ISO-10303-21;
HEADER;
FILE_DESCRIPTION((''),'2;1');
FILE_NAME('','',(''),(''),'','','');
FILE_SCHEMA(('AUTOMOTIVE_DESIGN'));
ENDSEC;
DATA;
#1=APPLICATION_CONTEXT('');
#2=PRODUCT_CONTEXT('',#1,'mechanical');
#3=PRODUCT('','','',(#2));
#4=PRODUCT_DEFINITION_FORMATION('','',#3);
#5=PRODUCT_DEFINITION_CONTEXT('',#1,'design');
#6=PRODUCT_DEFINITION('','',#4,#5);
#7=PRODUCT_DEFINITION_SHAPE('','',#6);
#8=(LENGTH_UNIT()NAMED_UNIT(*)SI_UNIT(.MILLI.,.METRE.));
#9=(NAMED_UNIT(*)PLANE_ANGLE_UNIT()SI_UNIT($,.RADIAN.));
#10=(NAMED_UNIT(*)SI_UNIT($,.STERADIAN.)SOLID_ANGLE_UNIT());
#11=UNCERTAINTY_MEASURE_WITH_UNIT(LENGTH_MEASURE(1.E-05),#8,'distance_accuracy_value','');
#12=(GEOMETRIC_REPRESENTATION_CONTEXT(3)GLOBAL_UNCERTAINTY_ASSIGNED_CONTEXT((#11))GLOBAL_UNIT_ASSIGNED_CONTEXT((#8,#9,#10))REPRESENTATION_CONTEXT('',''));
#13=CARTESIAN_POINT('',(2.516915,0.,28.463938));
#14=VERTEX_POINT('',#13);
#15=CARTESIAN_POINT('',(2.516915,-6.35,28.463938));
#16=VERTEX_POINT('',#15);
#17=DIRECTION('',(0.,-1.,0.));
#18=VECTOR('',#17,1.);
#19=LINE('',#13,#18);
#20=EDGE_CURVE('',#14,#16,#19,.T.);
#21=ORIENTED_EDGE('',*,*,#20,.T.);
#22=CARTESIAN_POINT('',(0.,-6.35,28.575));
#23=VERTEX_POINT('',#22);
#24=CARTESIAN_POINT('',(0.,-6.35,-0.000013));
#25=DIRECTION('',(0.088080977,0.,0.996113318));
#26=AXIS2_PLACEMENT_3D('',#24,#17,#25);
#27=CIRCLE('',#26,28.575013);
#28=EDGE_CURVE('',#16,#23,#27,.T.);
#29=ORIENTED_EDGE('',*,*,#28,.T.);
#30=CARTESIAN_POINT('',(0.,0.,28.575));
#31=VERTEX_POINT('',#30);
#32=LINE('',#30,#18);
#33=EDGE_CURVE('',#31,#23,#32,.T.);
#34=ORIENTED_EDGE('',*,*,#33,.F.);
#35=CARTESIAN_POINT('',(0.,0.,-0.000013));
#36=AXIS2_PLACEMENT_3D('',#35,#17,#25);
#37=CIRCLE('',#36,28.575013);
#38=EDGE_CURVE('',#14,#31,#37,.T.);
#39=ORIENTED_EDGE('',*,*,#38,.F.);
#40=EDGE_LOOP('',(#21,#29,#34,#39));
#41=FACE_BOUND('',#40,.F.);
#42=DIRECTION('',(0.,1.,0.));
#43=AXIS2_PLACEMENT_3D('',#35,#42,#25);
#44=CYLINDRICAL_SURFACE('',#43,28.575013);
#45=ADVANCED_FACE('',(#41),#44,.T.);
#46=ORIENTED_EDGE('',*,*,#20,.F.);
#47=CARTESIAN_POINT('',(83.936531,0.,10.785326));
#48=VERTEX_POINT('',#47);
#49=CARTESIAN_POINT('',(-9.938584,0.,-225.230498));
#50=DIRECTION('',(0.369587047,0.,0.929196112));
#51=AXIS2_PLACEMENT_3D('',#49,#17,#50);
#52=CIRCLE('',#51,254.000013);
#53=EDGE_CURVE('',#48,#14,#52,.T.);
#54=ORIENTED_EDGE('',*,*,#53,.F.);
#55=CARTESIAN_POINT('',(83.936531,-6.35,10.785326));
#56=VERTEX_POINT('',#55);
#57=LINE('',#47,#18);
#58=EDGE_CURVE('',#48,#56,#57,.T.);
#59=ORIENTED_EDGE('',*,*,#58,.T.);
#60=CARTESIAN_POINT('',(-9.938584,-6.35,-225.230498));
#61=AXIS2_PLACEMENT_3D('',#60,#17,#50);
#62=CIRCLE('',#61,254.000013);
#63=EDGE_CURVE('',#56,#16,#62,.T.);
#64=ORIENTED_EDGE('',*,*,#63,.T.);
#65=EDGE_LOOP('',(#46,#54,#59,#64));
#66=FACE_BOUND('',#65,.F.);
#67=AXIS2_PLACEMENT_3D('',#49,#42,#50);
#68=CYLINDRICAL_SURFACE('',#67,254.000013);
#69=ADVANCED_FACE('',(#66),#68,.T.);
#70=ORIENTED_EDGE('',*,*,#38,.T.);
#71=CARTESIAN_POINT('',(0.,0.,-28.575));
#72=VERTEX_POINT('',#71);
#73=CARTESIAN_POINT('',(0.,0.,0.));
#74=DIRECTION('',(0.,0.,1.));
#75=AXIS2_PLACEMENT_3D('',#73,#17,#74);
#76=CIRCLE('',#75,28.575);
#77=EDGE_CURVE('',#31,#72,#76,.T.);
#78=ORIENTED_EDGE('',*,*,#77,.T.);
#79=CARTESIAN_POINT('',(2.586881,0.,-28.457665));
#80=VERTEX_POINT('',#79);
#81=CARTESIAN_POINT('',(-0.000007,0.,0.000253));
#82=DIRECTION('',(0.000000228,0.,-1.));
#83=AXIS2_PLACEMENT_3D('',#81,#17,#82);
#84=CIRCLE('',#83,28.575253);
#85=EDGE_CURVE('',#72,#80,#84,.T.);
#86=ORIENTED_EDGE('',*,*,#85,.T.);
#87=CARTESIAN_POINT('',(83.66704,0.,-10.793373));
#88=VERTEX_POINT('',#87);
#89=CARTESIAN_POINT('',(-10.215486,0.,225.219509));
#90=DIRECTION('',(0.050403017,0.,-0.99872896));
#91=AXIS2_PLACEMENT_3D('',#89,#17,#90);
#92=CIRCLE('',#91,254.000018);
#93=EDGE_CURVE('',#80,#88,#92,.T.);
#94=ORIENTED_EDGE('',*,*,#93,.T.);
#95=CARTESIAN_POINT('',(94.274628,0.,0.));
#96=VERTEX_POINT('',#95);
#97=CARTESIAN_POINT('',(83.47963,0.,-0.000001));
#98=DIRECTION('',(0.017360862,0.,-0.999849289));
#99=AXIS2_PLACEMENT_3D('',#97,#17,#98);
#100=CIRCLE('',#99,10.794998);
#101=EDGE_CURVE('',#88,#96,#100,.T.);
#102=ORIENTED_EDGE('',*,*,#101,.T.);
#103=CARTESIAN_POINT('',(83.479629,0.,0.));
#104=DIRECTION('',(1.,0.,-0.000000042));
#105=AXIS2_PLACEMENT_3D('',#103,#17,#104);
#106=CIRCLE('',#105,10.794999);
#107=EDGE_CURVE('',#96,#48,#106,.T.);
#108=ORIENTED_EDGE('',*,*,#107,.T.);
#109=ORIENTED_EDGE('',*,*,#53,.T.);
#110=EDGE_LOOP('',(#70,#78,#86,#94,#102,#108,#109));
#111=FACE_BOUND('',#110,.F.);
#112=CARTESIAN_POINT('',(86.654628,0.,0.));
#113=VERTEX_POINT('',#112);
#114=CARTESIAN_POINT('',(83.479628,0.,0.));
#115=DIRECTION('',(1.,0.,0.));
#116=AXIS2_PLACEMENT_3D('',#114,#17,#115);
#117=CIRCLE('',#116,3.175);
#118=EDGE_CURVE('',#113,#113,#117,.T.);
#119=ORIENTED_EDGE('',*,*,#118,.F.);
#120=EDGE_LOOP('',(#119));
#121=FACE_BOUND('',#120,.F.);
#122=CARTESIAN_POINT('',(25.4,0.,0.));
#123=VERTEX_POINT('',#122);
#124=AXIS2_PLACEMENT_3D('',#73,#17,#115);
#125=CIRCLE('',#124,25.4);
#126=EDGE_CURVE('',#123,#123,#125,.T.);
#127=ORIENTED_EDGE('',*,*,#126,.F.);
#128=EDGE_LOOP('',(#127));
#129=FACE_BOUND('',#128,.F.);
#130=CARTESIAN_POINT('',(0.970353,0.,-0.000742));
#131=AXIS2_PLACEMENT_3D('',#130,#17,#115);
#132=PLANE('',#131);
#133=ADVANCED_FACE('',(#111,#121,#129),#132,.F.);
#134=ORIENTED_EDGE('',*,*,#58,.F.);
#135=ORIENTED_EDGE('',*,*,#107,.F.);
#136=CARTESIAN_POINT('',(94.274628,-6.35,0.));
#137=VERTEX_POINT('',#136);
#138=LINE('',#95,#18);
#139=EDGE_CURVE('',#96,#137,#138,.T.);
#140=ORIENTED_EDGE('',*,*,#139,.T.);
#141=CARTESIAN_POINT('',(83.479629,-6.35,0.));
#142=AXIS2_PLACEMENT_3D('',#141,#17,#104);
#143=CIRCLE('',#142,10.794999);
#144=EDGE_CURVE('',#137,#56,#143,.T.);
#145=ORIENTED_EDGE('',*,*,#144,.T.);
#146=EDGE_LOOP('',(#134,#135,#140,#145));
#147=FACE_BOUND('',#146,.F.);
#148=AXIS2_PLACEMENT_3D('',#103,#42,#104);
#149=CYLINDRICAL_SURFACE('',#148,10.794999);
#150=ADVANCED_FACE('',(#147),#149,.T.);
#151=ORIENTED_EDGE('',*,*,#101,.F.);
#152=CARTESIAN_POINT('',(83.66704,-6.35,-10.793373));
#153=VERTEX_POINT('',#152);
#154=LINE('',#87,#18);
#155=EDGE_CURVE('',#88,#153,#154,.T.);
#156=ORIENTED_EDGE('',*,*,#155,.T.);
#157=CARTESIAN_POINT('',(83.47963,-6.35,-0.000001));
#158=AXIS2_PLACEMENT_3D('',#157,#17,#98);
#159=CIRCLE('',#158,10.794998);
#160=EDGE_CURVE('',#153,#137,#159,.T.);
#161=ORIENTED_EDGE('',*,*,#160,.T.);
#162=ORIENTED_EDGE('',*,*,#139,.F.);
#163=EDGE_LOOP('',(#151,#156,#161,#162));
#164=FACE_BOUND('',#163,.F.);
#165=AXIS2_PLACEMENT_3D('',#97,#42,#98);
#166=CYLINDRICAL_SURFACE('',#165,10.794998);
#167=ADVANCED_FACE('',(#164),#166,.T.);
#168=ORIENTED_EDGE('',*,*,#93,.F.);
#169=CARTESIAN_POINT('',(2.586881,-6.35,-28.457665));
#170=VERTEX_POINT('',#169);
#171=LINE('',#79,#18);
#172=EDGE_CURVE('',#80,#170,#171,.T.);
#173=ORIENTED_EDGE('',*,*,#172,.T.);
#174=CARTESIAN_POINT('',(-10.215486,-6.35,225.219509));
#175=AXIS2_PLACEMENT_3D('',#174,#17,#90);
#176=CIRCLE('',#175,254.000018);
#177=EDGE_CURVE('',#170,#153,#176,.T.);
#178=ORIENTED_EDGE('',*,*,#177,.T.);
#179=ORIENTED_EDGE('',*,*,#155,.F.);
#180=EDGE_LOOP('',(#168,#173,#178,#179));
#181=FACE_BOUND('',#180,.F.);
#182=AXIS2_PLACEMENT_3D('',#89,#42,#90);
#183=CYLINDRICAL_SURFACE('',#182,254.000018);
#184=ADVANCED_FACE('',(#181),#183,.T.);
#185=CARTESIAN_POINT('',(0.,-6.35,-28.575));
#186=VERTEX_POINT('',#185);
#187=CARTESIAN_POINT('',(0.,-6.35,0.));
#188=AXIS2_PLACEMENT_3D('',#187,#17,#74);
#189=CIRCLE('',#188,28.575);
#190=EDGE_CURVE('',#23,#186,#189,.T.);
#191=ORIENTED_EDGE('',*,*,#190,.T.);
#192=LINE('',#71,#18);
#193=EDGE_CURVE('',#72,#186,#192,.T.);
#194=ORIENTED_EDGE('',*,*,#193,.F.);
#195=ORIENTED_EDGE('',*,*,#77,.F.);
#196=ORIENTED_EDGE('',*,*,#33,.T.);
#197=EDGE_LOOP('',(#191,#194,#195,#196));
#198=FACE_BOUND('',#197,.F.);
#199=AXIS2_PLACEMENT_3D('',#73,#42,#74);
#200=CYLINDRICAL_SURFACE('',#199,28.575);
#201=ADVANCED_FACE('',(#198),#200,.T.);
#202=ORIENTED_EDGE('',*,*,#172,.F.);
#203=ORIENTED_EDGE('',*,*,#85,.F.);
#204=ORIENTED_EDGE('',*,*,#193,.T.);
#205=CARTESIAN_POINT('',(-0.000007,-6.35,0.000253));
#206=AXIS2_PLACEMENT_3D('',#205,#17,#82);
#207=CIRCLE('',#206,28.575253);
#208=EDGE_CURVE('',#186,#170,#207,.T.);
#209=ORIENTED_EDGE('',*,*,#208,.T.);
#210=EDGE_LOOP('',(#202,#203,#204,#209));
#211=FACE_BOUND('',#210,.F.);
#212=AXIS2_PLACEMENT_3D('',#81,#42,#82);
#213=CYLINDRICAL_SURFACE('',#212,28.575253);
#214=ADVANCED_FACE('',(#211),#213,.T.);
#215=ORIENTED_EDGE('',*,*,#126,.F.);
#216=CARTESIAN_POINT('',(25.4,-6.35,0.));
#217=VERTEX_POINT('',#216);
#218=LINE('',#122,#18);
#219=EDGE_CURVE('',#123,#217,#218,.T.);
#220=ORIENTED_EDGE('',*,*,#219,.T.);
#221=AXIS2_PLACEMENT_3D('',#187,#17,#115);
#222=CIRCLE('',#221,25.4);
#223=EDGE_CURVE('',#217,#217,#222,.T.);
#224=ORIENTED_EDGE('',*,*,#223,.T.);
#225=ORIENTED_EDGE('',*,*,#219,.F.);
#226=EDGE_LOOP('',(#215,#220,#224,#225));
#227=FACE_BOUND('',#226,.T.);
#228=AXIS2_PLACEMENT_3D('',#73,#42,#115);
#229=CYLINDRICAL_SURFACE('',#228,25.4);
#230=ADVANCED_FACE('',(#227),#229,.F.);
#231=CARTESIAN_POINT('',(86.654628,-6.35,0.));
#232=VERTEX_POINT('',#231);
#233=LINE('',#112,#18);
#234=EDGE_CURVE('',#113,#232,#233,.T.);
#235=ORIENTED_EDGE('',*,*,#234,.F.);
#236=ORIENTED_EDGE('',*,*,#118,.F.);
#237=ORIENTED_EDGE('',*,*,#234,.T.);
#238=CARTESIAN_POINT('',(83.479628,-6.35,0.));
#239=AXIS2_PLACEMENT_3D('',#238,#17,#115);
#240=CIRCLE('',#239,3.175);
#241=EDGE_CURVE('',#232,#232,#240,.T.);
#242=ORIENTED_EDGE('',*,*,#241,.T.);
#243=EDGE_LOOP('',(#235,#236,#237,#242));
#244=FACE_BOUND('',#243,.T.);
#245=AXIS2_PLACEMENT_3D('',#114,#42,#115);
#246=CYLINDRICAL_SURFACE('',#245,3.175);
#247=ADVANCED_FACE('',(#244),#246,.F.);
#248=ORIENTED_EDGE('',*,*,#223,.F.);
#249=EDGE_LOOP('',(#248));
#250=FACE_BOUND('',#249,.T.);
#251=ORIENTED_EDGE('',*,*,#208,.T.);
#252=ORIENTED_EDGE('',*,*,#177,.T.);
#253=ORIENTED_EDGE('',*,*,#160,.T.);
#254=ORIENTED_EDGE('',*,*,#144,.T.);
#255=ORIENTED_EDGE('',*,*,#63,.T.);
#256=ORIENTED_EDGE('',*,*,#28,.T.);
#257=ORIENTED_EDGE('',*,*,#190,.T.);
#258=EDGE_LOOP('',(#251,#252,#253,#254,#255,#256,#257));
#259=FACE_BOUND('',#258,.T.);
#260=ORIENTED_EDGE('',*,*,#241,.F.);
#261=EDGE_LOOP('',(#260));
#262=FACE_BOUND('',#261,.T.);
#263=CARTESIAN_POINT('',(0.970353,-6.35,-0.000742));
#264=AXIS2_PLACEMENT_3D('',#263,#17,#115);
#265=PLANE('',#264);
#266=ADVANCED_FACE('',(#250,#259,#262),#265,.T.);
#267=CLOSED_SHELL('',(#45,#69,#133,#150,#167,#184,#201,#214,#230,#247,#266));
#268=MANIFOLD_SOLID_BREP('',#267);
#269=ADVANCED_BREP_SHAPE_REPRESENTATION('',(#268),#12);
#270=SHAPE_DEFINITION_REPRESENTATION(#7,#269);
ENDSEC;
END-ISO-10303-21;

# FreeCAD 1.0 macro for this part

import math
import FreeCAD as App
import Part
import Sketcher

V = App.Vector
Q = App.Units.Quantity

doc = App.newDocument("Part")
params = doc.addObject("Spreadsheet::Sheet", "Params")
for row, (alias, value) in enumerate([
    ("sketch1_diameter", "2 in"),
    ("sketch1_diameter2", "0.25 in"),
    ("sketch1_radius", "1.125 in"),
    ("sketch1_radius2", "0.4249999 in"),
    ("pad1_length", "0.25 in"),
], start=1):
    params.set(f"A{row}", alias)
    params.set(f"B{row}", "=" + value)
    params.setAlias(f"B{row}", alias)

body = doc.addObject("PartDesign::Body", "Body")

# Sketch on XZ plane
sketch1 = doc.addObject("Sketcher::SketchObject", "Sketch")
body.addObject(sketch1)
sketch1.AttachmentSupport = (doc.XZ_Plane, [""])
sketch1.MapMode = "FlatFace"
sketch1.addGeometry([
    Part.ArcOfCircle(Part.Circle(V(0, 0, 0), V(0, 0, 1), 28.6), math.radians(84.95), math.radians(90)),  # 0
    Part.ArcOfCircle(Part.Circle(V(0, 0, 0), V(0, 0, 1), 28.6), math.radians(90), math.radians(270)),  # 1
    Part.ArcOfCircle(Part.Circle(V(0, 0, 0), V(0, 0, 1), 28.6), math.radians(-90), math.radians(-84.81)),  # 2
    Part.ArcOfCircle(Part.Circle(V(-10.2, 225.2, 0), V(0, 0, 1), 254), math.radians(-87.11), math.radians(-68.31)),  # 3
    Part.ArcOfCircle(Part.Circle(V(83.5, 0, 0), V(0, 0, 1), 10.8), math.radians(-89), math.radians(0)),  # 4
    Part.ArcOfCircle(Part.Circle(V(83.5, 0, 0), V(0, 0, 1), 10.8), math.radians(0), math.radians(88)),  # 5
    Part.ArcOfCircle(Part.Circle(V(-9.9, -225.2, 0), V(0, 0, 1), 254), math.radians(68.31), math.radians(87.19)),  # 6
    Part.Circle(V(0, 0, 0), V(0, 0, 1), 25.4),  # 7
    Part.Circle(V(83.5, 0, 0), V(0, 0, 1), 3.2),  # 8
], False)
sketch1.addConstraint([
    Sketcher.Constraint("Tangent", 0, 2, 1, 1),
    Sketcher.Constraint("Tangent", 1, 2, 2, 1),
    Sketcher.Constraint("Coincident", 2, 2, 3, 1),
    Sketcher.Constraint("Coincident", 3, 2, 4, 1),
    Sketcher.Constraint("Tangent", 4, 2, 5, 1),
    Sketcher.Constraint("Coincident", 5, 2, 6, 1),
    Sketcher.Constraint("Coincident", 6, 2, 0, 1),
    Sketcher.Constraint("Coincident", 1, 3, -1, 1),
    Sketcher.Constraint("Coincident", 7, 3, -1, 1),
    Sketcher.Constraint("Coincident", 8, 3, 4, 3),
    Sketcher.Constraint("Equal", 4, 5),
    Sketcher.Constraint("PointOnObject", 4, 3, -1),
    Sketcher.Constraint("PointOnObject", 0, 2, -2),
    Sketcher.Constraint("PointOnObject", 1, 2, -2),
    Sketcher.Constraint("PointOnObject", 4, 2, -1),
    Sketcher.Constraint("Diameter", 7, Q("2 in")),
    Sketcher.Constraint("Diameter", 8, Q("0.25 in")),
    Sketcher.Constraint("Radius", 1, Q("1.125 in")),
    Sketcher.Constraint("Radius", 4, Q("0.4249999 in")),
    Sketcher.Constraint("Radius", 0, 28.575013),
    Sketcher.Constraint("Radius", 2, 28.575253),
    Sketcher.Constraint("Radius", 3, 254.000018),
    Sketcher.Constraint("Radius", 6, 254.000013),
    Sketcher.Constraint("DistanceY", 2, 3, 3, 3, Q("8.8668998 in")),
    Sketcher.Constraint("DistanceX", 2, 3, 4, 3, Q("3.2865998 in")),
    Sketcher.Constraint("DistanceY", 6, 3, -1, 1, 225.230498),
    Sketcher.Constraint("DistanceX", 4, 3, 5, 2, 0.456901),
    Sketcher.Constraint("DistanceX", -1, 1, 2, 2, 2.586881),
])
sketch1.setExpression("Constraints[15]", "Params.sketch1_diameter")
sketch1.setExpression("Constraints[16]", "Params.sketch1_diameter2")
sketch1.setExpression("Constraints[17]", "Params.sketch1_radius")
sketch1.setExpression("Constraints[18]", "Params.sketch1_radius2")
pad1 = doc.addObject("PartDesign::Pad", "Pad")
body.addObject(pad1)
pad1.Profile = sketch1
pad1.setExpression("Length", "Params.pad1_length")

doc.recompute()
